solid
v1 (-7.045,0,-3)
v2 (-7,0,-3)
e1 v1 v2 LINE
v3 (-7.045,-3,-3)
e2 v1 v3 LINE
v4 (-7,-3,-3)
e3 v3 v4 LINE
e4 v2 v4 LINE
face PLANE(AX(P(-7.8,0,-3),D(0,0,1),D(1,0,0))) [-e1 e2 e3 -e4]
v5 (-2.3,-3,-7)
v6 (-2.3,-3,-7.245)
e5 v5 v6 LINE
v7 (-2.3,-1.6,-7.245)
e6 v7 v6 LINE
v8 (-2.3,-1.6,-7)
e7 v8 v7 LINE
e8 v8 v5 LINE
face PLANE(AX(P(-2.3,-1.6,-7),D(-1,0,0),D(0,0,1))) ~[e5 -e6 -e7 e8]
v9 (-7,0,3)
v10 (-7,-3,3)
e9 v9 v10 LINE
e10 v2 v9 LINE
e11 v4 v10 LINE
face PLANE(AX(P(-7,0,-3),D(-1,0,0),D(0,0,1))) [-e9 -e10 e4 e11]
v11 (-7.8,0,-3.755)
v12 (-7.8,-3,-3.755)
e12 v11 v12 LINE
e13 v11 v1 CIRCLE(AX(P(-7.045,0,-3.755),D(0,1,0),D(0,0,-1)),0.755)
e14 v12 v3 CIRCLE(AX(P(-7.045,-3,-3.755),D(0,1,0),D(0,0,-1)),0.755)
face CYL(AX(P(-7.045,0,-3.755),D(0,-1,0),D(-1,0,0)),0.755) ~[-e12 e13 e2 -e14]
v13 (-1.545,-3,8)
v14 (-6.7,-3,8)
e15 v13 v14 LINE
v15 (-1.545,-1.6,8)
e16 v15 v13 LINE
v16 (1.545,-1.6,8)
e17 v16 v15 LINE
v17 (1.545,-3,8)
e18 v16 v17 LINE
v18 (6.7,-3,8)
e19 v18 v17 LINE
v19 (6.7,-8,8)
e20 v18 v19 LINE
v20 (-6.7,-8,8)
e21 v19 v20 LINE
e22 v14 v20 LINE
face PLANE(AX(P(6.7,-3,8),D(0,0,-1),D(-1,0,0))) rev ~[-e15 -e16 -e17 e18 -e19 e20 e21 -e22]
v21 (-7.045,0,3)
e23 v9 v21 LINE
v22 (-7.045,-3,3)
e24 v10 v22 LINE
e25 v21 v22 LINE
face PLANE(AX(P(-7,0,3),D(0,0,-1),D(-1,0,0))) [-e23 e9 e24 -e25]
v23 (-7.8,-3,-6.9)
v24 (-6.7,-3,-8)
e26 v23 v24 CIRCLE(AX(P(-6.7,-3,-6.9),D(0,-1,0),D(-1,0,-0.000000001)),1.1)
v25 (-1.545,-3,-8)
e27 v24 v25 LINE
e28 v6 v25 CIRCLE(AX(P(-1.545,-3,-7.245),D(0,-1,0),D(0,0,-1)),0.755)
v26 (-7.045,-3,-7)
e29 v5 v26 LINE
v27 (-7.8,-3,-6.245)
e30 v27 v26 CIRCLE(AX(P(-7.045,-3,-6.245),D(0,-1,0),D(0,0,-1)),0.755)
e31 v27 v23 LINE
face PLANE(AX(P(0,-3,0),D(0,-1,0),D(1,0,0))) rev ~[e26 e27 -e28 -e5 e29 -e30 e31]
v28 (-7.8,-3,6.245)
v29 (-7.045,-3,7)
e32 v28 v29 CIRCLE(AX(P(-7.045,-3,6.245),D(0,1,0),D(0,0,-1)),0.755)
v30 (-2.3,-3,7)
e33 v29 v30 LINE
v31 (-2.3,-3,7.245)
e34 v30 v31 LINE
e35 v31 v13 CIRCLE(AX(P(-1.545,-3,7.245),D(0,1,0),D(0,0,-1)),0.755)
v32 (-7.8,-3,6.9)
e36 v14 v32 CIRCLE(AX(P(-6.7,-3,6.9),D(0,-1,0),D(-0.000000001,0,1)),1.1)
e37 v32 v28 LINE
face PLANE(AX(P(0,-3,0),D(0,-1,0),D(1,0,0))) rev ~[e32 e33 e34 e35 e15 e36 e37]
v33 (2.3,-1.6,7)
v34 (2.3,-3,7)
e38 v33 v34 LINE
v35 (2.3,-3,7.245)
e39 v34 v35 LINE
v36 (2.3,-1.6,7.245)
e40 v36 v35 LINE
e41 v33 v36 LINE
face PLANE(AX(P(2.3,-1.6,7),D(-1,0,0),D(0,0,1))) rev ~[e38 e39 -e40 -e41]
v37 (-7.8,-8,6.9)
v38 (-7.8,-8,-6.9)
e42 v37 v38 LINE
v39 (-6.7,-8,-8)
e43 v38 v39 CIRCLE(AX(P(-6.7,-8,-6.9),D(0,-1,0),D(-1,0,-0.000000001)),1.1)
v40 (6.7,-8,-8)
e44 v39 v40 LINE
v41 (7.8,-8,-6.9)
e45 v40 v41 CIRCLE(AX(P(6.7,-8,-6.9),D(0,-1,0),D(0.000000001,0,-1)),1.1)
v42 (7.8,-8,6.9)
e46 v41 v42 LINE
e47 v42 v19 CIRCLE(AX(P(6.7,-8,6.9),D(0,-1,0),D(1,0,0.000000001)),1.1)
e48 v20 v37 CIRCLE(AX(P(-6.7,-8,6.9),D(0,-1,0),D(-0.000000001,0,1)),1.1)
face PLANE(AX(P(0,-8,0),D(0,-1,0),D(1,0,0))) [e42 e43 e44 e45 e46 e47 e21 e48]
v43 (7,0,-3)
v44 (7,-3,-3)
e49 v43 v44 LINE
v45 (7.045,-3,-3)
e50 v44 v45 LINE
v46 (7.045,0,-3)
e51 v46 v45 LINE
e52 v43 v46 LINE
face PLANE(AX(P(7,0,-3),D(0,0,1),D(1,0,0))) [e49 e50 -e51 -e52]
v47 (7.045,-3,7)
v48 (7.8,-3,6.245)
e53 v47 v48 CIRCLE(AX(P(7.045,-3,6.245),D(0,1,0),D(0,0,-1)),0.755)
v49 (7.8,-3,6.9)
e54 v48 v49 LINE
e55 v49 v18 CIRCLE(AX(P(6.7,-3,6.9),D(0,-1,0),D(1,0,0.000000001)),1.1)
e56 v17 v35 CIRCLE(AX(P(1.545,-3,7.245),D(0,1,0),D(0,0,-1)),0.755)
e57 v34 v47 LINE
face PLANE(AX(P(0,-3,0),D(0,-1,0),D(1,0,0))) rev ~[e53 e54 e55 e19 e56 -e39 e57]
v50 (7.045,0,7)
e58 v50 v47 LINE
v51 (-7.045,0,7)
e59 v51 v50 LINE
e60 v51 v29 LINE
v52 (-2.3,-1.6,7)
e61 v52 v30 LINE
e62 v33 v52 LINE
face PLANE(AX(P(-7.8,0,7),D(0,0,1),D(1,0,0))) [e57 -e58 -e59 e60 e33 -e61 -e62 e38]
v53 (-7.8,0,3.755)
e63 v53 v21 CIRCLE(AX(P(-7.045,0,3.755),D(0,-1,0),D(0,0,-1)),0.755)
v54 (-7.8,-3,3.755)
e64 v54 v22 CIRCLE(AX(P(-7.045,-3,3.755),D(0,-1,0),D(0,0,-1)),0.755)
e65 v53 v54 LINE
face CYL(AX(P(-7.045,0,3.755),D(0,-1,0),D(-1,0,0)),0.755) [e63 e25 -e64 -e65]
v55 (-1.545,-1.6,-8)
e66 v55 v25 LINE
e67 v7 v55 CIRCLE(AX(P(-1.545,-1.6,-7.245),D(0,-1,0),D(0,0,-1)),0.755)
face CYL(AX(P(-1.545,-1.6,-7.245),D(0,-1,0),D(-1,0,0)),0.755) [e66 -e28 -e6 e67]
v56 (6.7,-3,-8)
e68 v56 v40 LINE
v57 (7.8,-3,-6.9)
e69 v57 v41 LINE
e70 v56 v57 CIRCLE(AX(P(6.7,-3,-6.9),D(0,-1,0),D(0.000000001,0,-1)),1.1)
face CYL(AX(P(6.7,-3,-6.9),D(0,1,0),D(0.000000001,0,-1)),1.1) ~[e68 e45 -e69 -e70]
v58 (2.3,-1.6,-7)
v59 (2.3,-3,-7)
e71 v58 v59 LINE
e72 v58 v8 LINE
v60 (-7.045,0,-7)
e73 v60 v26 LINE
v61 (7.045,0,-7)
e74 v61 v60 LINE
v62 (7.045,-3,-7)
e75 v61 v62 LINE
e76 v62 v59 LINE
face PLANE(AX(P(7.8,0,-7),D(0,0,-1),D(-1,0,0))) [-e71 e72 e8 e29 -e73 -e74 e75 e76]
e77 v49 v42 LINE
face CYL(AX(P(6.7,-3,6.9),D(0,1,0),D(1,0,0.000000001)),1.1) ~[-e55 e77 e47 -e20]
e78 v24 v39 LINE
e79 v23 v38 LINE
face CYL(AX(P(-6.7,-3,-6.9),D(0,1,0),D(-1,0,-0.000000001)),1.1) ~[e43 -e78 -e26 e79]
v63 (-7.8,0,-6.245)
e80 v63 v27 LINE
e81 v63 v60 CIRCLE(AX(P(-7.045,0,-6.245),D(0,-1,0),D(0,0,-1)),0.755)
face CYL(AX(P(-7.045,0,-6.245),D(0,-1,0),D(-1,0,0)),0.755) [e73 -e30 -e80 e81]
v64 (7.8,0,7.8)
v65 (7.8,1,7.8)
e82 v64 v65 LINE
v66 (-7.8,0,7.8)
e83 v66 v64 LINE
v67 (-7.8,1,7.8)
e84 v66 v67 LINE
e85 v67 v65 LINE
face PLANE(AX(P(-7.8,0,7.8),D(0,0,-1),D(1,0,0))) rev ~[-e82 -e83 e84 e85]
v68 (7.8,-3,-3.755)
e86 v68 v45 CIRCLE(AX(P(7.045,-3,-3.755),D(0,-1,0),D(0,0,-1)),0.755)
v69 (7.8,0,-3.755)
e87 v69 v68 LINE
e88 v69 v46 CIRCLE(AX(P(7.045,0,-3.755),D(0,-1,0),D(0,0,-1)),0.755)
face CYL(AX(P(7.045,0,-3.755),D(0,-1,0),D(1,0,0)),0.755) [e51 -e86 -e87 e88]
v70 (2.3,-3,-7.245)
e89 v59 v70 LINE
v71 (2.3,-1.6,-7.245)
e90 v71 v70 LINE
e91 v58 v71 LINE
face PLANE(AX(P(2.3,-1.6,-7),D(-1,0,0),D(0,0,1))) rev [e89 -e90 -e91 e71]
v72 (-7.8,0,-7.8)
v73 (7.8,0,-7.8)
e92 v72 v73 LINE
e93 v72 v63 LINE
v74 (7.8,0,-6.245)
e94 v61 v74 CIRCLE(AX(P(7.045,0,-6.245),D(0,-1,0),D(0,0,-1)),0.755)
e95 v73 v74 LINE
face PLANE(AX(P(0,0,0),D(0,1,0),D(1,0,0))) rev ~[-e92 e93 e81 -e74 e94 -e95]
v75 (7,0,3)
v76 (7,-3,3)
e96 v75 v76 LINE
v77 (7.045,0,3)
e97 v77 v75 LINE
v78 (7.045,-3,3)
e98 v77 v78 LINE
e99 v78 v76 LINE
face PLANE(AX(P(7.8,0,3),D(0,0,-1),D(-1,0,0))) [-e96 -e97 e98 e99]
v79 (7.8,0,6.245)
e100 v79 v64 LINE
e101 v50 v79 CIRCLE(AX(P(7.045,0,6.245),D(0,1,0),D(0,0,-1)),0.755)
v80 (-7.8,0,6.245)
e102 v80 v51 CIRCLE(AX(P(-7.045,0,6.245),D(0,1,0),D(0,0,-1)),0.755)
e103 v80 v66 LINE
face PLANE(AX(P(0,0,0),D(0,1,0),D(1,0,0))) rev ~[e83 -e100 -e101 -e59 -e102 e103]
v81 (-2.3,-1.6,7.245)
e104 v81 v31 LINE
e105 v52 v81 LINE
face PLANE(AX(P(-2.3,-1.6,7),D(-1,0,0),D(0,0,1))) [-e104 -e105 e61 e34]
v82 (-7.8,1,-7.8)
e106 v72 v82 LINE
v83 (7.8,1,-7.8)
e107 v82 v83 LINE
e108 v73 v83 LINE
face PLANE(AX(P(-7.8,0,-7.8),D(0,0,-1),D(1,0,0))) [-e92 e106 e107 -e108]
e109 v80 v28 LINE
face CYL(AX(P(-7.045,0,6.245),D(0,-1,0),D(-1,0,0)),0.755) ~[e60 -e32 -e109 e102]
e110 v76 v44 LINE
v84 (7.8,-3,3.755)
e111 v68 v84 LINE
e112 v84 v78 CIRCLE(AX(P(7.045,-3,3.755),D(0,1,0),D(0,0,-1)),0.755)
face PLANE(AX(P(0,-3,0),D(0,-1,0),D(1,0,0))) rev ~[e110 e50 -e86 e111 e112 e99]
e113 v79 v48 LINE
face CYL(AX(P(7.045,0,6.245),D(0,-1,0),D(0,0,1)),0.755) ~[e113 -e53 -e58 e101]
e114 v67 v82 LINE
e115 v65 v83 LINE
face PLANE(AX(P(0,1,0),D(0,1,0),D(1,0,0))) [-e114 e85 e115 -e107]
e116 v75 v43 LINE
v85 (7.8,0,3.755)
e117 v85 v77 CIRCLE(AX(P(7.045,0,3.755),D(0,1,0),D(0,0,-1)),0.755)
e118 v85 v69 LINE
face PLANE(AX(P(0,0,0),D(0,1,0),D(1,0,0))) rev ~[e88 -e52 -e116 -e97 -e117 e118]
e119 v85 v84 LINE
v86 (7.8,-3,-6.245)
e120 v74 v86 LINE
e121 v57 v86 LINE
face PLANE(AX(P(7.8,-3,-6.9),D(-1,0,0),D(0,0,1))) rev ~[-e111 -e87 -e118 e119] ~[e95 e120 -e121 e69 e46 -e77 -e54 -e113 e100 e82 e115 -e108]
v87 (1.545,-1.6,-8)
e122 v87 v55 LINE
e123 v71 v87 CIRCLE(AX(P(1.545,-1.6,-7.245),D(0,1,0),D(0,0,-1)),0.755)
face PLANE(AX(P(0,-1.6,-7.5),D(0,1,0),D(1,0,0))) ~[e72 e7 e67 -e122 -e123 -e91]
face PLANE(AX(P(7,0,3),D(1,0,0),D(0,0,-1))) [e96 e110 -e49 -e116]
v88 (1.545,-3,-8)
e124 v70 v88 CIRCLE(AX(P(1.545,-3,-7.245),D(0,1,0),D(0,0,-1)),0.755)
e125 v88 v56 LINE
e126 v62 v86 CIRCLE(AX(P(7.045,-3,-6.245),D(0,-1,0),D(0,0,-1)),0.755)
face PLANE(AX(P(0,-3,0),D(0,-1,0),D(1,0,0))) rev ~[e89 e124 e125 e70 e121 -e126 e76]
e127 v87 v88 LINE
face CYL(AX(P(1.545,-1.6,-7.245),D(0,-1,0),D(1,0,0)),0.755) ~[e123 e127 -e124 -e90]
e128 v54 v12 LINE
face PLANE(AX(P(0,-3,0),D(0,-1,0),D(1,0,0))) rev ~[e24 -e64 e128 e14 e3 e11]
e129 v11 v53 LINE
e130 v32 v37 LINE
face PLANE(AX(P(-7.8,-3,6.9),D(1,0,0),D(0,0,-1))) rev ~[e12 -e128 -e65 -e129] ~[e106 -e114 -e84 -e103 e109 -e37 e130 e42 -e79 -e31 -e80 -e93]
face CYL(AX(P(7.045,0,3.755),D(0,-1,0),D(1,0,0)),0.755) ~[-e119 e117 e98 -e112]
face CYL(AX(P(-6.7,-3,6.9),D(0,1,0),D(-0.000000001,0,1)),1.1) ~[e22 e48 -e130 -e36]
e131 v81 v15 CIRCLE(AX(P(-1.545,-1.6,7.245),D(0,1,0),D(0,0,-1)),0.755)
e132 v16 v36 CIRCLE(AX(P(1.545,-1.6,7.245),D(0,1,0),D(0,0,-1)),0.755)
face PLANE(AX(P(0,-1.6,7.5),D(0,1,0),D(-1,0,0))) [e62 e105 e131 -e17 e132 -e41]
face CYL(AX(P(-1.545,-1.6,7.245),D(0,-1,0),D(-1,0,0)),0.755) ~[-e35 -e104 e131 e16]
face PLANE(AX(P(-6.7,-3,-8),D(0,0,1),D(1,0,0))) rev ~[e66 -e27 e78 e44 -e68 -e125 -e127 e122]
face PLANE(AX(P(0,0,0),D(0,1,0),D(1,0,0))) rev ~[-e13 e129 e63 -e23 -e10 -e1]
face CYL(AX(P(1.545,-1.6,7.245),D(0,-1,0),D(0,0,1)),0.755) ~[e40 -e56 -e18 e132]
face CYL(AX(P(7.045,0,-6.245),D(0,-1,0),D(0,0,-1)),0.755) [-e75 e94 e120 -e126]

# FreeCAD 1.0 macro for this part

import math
import FreeCAD as App
import Part
import Sketcher


def edges_at(feature, points):
    """Names of the edges that pass closest to the given points."""
    edges = feature.Shape.Edges
    near = lambda p: min(range(len(edges)), key=lambda i: edges[i].distToShape(Part.Vertex(*p))[0])
    return sorted({f"Edge{near(p) + 1}" for p in points})


def add_polygon(sketch, points):
    """Adds a closed chain of lines whose ends are joined by coincident constraints."""
    first, n = sketch.GeometryCount, len(points)
    for a, b in zip(points, points[1:] + points[:1]):
        sketch.addGeometry(Part.LineSegment(App.Vector(*a, 0), App.Vector(*b, 0)), False)
    for i in range(n):
        sketch.addConstraint(Sketcher.Constraint("Coincident", first + i, 2, first + (i + 1) % n, 1))

doc = App.newDocument("Part")
body = doc.addObject("PartDesign::Body", "Body")

# Sketch on XZ plane
sketch1 = body.newObject("Sketcher::SketchObject", "Sketch")
sketch1.AttachmentSupport = (doc.getObject("XZ_Plane"), [""])
sketch1.MapMode = "FlatFace"
add_polygon(sketch1, [(-8, -8), (-8, 8), (8, 8), (8, -8)])  # lines 0-3
sketch1.addConstraint(Sketcher.Constraint("Vertical", 0))
sketch1.addConstraint(Sketcher.Constraint("Horizontal", 1))
sketch1.addConstraint(Sketcher.Constraint("Vertical", 2))
sketch1.addConstraint(Sketcher.Constraint("Horizontal", 3))
sketch1.addConstraint(Sketcher.Constraint("Symmetric", 0, 2, 2, 2, -1, 1))
sketch1.addConstraint(Sketcher.Constraint("Equal", 3, 0))
sketch1.addConstraint(Sketcher.Constraint("DistanceX", 1, 1, 1, 2, 15.6))
pad1 = body.newObject("PartDesign::Pad", "Pad")
pad1.Profile = sketch1
pad1.Length = 1
pad1.Reversed = True

# Sketch on XZ plane
sketch2 = body.newObject("Sketcher::SketchObject", "Sketch001")
sketch2.AttachmentSupport = (doc.getObject("XZ_Plane"), [""])
sketch2.MapMode = "FlatFace"
add_polygon(sketch2, [(-7.8, -3), (-7, -3), (-7, 3), (-7.8, 3), (-7.8, 7), (7.8, 7), (7.8, 3), (7, 3), (7, -3), (7.8, -3), (7.8, -7), (-7.8, -7)])  # lines 0-11
sketch2.addConstraint(Sketcher.Constraint("Horizontal", 0))
sketch2.addConstraint(Sketcher.Constraint("Vertical", 1))
sketch2.addConstraint(Sketcher.Constraint("Horizontal", 2))
sketch2.addConstraint(Sketcher.Constraint("Vertical", 3))
sketch2.addConstraint(Sketcher.Constraint("Horizontal", 4))
sketch2.addConstraint(Sketcher.Constraint("Vertical", 5))
sketch2.addConstraint(Sketcher.Constraint("Horizontal", 6))
sketch2.addConstraint(Sketcher.Constraint("Vertical", 7))
sketch2.addConstraint(Sketcher.Constraint("Horizontal", 8))
sketch2.addConstraint(Sketcher.Constraint("Vertical", 9))
sketch2.addConstraint(Sketcher.Constraint("Horizontal", 10))
sketch2.addConstraint(Sketcher.Constraint("Vertical", 11))
sketch2.addConstraint(Sketcher.Constraint("Symmetric", 0, 2, 6, 2, -1, 1))
sketch2.addConstraint(Sketcher.Constraint("Symmetric", 2, 2, 8, 2, -1, 1))
sketch2.addConstraint(Sketcher.Constraint("Symmetric", 4, 2, 10, 2, -1, 1))
sketch2.addConstraint(Sketcher.Constraint("Symmetric", 2, 2, 5, 2, -2))
sketch2.addConstraint(Sketcher.Constraint("DistanceY", 1, 1, 1, 2, 6.0))
sketch2.addConstraint(Sketcher.Constraint("DistanceY", 3, 1, 3, 2, 4.0))
sketch2.addConstraint(Sketcher.Constraint("DistanceX", 0, 1, 0, 2, 0.8))
sketch2.addConstraint(Sketcher.Constraint("DistanceX", 4, 1, 4, 2, 15.6))
pad2 = body.newObject("PartDesign::Pad", "Pad001")
pad2.Profile = sketch2
pad2.Length = 3

# Sketch on XZ plane
sketch3 = body.newObject("Sketcher::SketchObject", "Sketch002")
sketch3.AttachmentSupport = (doc.getObject("XZ_Plane"), [""])
sketch3.MapMode = "FlatFace"
sketch3.AttachmentOffset = App.Placement(App.Vector(0, 0, 1.6), App.Rotation())
add_polygon(sketch3, [(2.3, 8), (2.3, 7), (-2.3, 7), (-2.3, 8)])  # lines 0-3
sketch3.addConstraint(Sketcher.Constraint("Vertical", 0))
sketch3.addConstraint(Sketcher.Constraint("Horizontal", 1))
sketch3.addConstraint(Sketcher.Constraint("Vertical", 2))
sketch3.addConstraint(Sketcher.Constraint("Horizontal", 3))
sketch3.addConstraint(Sketcher.Constraint("DistanceY", 0, 2, 0, 1, 1.0))
sketch3.addConstraint(Sketcher.Constraint("DistanceX", 1, 2, 1, 1, 4.6))
sketch3.addConstraint(Sketcher.Constraint("DistanceY", -1, 1, 0, 2, 7.0))
sketch3.addConstraint(Sketcher.Constraint("DistanceX", -1, 1, 0, 2, 2.3))
pad3 = body.newObject("PartDesign::Pad", "Pad002")
pad3.Profile = sketch3
pad3.Length = 1.4
doc.recompute()

mirrored = body.newObject("PartDesign::Mirrored", "Mirrored")
mirrored.Originals = [pad3]
mirrored.MirrorPlane = (doc.getObject("XY_Plane"), [""])
body.Tip = mirrored
doc.recompute()

fillet = body.newObject("PartDesign::Fillet", "Fillet")
fillet.Base = (mirrored, edges_at(mirrored, [
    (7.8, -1.5, 7),
    (7.8, -1.5, 3),
    (7.8, -1.5, -3),
    (7.8, -1.5, -7),
    (2.3, -2.3, -8),
    (-2.3, -2.3, -8),
    (-7.8, -1.5, -3),
    (-7.8, -1.5, -7),
    (2.3, -2.3, 8),
    (-2.3, -2.3, 8),
    (-7.8, -1.5, 7),
    (-7.8, -1.5, 3),
]))
fillet.Radius = 0.755

# Sketch on XZ plane
sketch4 = body.newObject("Sketcher::SketchObject", "Sketch003")
sketch4.AttachmentSupport = (doc.getObject("XZ_Plane"), [""])
sketch4.MapMode = "FlatFace"
sketch4.AttachmentOffset = App.Placement(App.Vector(0, 0, 3), App.Rotation())
sketch4.addGeometry(Part.LineSegment(App.Vector(-6.7, -8, 0), App.Vector(6.7, -8, 0)), False)
sketch4.addGeometry(Part.ArcOfCircle(Part.Circle(App.Vector(6.7, -6.9, 0), App.Vector(0, 0, 1), 1.1), math.radians(-90), math.radians(0)), False)
sketch4.addGeometry(Part.LineSegment(App.Vector(7.8, -6.9, 0), App.Vector(7.8, 6.9, 0)), False)
sketch4.addGeometry(Part.ArcOfCircle(Part.Circle(App.Vector(6.7, 6.9, 0), App.Vector(0, 0, 1), 1.1), math.radians(0), math.radians(90)), False)
sketch4.addGeometry(Part.LineSegment(App.Vector(6.7, 8, 0), App.Vector(-6.7, 8, 0)), False)
sketch4.addGeometry(Part.ArcOfCircle(Part.Circle(App.Vector(-6.7, 6.9, 0), App.Vector(0, 0, 1), 1.1), math.radians(90), math.radians(180)), False)
sketch4.addGeometry(Part.LineSegment(App.Vector(-7.8, 6.9, 0), App.Vector(-7.8, -6.9, 0)), False)
sketch4.addGeometry(Part.ArcOfCircle(Part.Circle(App.Vector(-6.7, -6.9, 0), App.Vector(0, 0, 1), 1.1), math.radians(-180), math.radians(-90)), False)
sketch4.addConstraint(Sketcher.Constraint("Tangent", 0, 2, 1, 1))
sketch4.addConstraint(Sketcher.Constraint("Tangent", 1, 2, 2, 1))
sketch4.addConstraint(Sketcher.Constraint("Tangent", 2, 2, 3, 1))
sketch4.addConstraint(Sketcher.Constraint("Tangent", 3, 2, 4, 1))
sketch4.addConstraint(Sketcher.Constraint("Tangent", 4, 2, 5, 1))
sketch4.addConstraint(Sketcher.Constraint("Tangent", 5, 2, 6, 1))
sketch4.addConstraint(Sketcher.Constraint("Tangent", 6, 2, 7, 1))
sketch4.addConstraint(Sketcher.Constraint("Tangent", 7, 2, 0, 1))
sketch4.addConstraint(Sketcher.Constraint("Horizontal", 0))
sketch4.addConstraint(Sketcher.Constraint("Vertical", 2))
sketch4.addConstraint(Sketcher.Constraint("Horizontal", 4))
sketch4.addConstraint(Sketcher.Constraint("Vertical", 6))
sketch4.addConstraint(Sketcher.Constraint("Equal", 1, 3))
sketch4.addConstraint(Sketcher.Constraint("Equal", 3, 5))
sketch4.addConstraint(Sketcher.Constraint("Equal", 5, 7))
sketch4.addConstraint(Sketcher.Constraint("Symmetric", 1, 3, 5, 3, -1, 1))
sketch4.addConstraint(Sketcher.Constraint("Radius", 1, 1.1))
sketch4.addConstraint(Sketcher.Constraint("DistanceX", 0, 1, 0, 2, 13.4))
sketch4.addConstraint(Sketcher.Constraint("DistanceY", 2, 1, 2, 2, 13.8))
pad4 = body.newObject("PartDesign::Pad", "Pad003")
pad4.Profile = sketch4
pad4.Length = 5

doc.recompute()
